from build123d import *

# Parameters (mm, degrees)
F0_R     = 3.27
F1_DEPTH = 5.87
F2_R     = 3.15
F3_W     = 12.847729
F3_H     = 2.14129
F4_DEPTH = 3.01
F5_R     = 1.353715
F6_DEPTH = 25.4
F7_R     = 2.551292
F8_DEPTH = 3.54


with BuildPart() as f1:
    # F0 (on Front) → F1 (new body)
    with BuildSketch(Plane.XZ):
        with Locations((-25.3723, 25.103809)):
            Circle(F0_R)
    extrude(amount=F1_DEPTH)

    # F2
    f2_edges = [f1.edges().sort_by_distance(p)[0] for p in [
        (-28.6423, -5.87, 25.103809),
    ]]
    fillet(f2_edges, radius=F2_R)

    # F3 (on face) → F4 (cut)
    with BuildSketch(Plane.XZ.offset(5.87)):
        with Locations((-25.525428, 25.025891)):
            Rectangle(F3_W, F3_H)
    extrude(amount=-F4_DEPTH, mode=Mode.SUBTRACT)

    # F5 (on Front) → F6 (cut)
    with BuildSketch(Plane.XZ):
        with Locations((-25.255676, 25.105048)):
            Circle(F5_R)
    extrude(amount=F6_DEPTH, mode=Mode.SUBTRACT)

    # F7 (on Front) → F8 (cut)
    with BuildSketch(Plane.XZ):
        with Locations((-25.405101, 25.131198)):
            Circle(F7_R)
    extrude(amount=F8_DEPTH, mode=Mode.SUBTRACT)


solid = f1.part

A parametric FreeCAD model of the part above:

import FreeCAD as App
import Part
import Sketcher

V = App.Vector
Q = App.Units.Quantity


def edges_at(feature, points):
    """Names of the edges that pass closest to the given points."""
    edges = feature.Shape.Edges
    near = lambda p: min(range(len(edges)), key=lambda i: edges[i].distToShape(Part.Vertex(*p))[0])
    return sorted({f"Edge{near(p) + 1}" for p in points})


def add_polygon(sketch, points):
    """Adds a closed chain of lines whose ends are joined by coincident constraints."""
    first, n = sketch.GeometryCount, len(points)
    for a, b in zip(points, points[1:] + points[:1]):
        sketch.addGeometry(Part.LineSegment(App.Vector(*a, 0), App.Vector(*b, 0)), False)
    for i in range(n):
        sketch.addConstraint(Sketcher.Constraint("Coincident", first + i, 2, first + (i + 1) % n, 1))

doc = App.newDocument("Part")
body = doc.addObject("PartDesign::Body", "Body")

sketch1 = doc.addObject("Sketcher::SketchObject", "Sketch")
body.addObject(sketch1)
sketch1.AttachmentSupport = (doc.XZ_Plane, [""])
sketch1.MapMode = "FlatFace"
sketch1.addGeometry(Part.Circle(V(-25.4, 25.1, 0), V(0, 0, 1), 3.3), False)
sketch1.addConstraint(Sketcher.Constraint("Diameter", 0, Q("6.54 mm")))
sketch1.addConstraint(Sketcher.Constraint("DistanceX", 0, 3, -1, 1, Q("25.3723 mm")))
sketch1.addConstraint(Sketcher.Constraint("DistanceY", -1, 1, 0, 3, Q("25.103809 mm")))
pad1 = doc.addObject("PartDesign::Pad", "Pad")
body.addObject(pad1)
pad1.Profile = sketch1
pad1.Length = 5.87
doc.recompute()

fillet = doc.addObject("PartDesign::Fillet", "Fillet")
body.addObject(fillet)
fillet.Base = (pad1, edges_at(pad1, [(-28.642, -5.87, 25.104)]))
fillet.Radius = 3.15

sketch2 = doc.addObject("Sketcher::SketchObject", "Sketch001")
body.addObject(sketch2)
sketch2.AttachmentSupport = (doc.XZ_Plane, [""])
sketch2.MapMode = "FlatFace"
sketch2.AttachmentOffset = App.Placement(V(0, 0, 5.87), App.Rotation())
add_polygon(sketch2, [(-31.9, 26.1), (-31.9, 24), (-19.1, 24), (-19.1, 26.1)])
sketch2.addConstraint(Sketcher.Constraint("Vertical", 0))
sketch2.addConstraint(Sketcher.Constraint("Horizontal", 1))
sketch2.addConstraint(Sketcher.Constraint("Vertical", 2))
sketch2.addConstraint(Sketcher.Constraint("Horizontal", 3))
sketch2.addConstraint(Sketcher.Constraint("DistanceX", 1, 1, 1, 2, Q("12.847729 mm")))
sketch2.addConstraint(Sketcher.Constraint("DistanceY", 0, 2, 0, 1, Q("2.14129 mm")))
sketch2.addConstraint(Sketcher.Constraint("DistanceX", 0, 2, -1, 1, Q("31.949292 mm")))
sketch2.addConstraint(Sketcher.Constraint("DistanceY", -1, 1, 0, 2, Q("23.955246 mm")))
pocket1 = doc.addObject("PartDesign::Pocket", "Pocket")
body.addObject(pocket1)
pocket1.Profile = sketch2
pocket1.Length = 3.01

sketch3 = doc.addObject("Sketcher::SketchObject", "Sketch002")
body.addObject(sketch3)
sketch3.AttachmentSupport = (doc.XZ_Plane, [""])
sketch3.MapMode = "FlatFace"
sketch3.addGeometry(Part.Circle(V(-25.3, 25.1, 0), V(0, 0, 1), 1.4), False)
sketch3.addConstraint(Sketcher.Constraint("Diameter", 0, Q("2.70743 mm")))
sketch3.addConstraint(Sketcher.Constraint("DistanceY", -1, 1, 0, 3, Q("25.105048 mm")))
sketch3.addConstraint(Sketcher.Constraint("DistanceX", 0, 3, -1, 1, Q("25.255676 mm")))
pocket2 = doc.addObject("PartDesign::Pocket", "Pocket001")
body.addObject(pocket2)
pocket2.Profile = sketch3
pocket2.Length = Q("1 in")
pocket2.Reversed = True

sketch4 = doc.addObject("Sketcher::SketchObject", "Sketch003")
body.addObject(sketch4)
sketch4.AttachmentSupport = (doc.XZ_Plane, [""])
sketch4.MapMode = "FlatFace"
sketch4.addGeometry(Part.Circle(V(-25.4, 25.1, 0), V(0, 0, 1), 2.6), False)
sketch4.addConstraint(Sketcher.Constraint("Diameter", 0, Q("5.102584 mm")))
sketch4.addConstraint(Sketcher.Constraint("DistanceX", 0, 3, -1, 1, Q("25.405101 mm")))
sketch4.addConstraint(Sketcher.Constraint("DistanceY", -1, 1, 0, 3, Q("25.131198 mm")))
pocket3 = doc.addObject("PartDesign::Pocket", "Pocket002")
body.addObject(pocket3)
pocket3.Profile = sketch4
pocket3.Length = 3.54
pocket3.Reversed = True

doc.recompute()
